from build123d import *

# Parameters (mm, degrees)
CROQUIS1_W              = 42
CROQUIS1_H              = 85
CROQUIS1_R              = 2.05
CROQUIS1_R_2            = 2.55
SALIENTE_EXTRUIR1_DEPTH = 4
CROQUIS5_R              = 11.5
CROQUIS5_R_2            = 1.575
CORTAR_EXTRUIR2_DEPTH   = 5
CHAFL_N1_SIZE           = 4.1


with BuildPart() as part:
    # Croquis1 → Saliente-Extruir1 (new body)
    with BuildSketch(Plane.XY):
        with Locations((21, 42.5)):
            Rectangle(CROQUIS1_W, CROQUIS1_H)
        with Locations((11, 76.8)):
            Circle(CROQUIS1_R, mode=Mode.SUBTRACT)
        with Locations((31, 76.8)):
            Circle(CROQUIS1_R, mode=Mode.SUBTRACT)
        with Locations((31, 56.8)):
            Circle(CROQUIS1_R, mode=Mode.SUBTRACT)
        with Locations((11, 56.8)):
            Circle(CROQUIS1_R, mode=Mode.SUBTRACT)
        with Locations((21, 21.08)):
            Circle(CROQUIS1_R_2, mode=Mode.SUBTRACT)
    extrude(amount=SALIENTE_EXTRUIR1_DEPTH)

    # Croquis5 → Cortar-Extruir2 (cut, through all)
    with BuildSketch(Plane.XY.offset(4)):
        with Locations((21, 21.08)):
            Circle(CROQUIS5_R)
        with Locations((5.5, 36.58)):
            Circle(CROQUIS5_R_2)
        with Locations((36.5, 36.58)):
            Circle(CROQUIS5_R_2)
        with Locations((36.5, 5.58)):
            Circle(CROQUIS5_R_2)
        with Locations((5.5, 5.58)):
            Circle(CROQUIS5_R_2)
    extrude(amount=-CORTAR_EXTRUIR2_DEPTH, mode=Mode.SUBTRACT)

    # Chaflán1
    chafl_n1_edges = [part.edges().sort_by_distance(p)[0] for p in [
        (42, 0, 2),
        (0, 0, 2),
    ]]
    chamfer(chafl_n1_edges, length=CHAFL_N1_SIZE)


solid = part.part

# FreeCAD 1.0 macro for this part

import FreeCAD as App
import Part
import Sketcher


def edges_at(feature, points):
    """Names of the edges that pass closest to the given points."""
    edges = feature.Shape.Edges
    near = lambda p: min(range(len(edges)), key=lambda i: edges[i].distToShape(Part.Vertex(*p))[0])
    return sorted({f"Edge{near(p) + 1}" for p in points})


def add_polygon(sketch, points):
    """Adds a closed chain of lines whose ends are joined by coincident constraints."""
    first, n = sketch.GeometryCount, len(points)
    for a, b in zip(points, points[1:] + points[:1]):
        sketch.addGeometry(Part.LineSegment(App.Vector(*a, 0), App.Vector(*b, 0)), False)
    for i in range(n):
        sketch.addConstraint(Sketcher.Constraint("Coincident", first + i, 2, first + (i + 1) % n, 1))

doc = App.newDocument("Part")
body = doc.addObject("PartDesign::Body", "Body")

sketch1 = body.newObject("Sketcher::SketchObject", "Sketch")
sketch1.AttachmentSupport = (doc.getObject("XY_Plane"), [""])
sketch1.MapMode = "FlatFace"
add_polygon(sketch1, [(0, 85), (0, 0), (42, 0), (42, 85)])
sketch1.addGeometry(Part.Circle(App.Vector(21, 21.08, 0), App.Vector(0, 0, 1), 2.55), False)
sketch1.addGeometry(Part.Circle(App.Vector(11, 56.8, 0), App.Vector(0, 0, 1), 2.05), False)
sketch1.addGeometry(Part.Circle(App.Vector(11, 76.8, 0), App.Vector(0, 0, 1), 2.05), False)
sketch1.addGeometry(Part.Circle(App.Vector(31, 56.8, 0), App.Vector(0, 0, 1), 2.05), False)
sketch1.addGeometry(Part.Circle(App.Vector(31, 76.8, 0), App.Vector(0, 0, 1), 2.05), False)
sketch1.addConstraint([
    Sketcher.Constraint("Vertical", 0),
    Sketcher.Constraint("Horizontal", 1),
    Sketcher.Constraint("Vertical", 2),
    Sketcher.Constraint("Horizontal", 3),
    Sketcher.Constraint("Coincident", 0, 2, -1, 1),
    Sketcher.Constraint("Equal", 5, 6),
    Sketcher.Constraint("Equal", 6, 7),
    Sketcher.Constraint("Equal", 7, 8),
    Sketcher.Constraint("Horizontal", 5, 3, 7, 3),
    Sketcher.Constraint("Horizontal", 6, 3, 8, 3),
    Sketcher.Constraint("Vertical", 5, 3, 6, 3),
    Sketcher.Constraint("Vertical", 7, 3, 8, 3),
    Sketcher.Constraint("Diameter", 4, 5.1),
    Sketcher.Constraint("Diameter", 5, 4.1),
    Sketcher.Constraint("DistanceX", 1, 1, 1, 2, 42.0),
    Sketcher.Constraint("DistanceY", 0, 2, 0, 1, 85.0),
    Sketcher.Constraint("DistanceX", -1, 1, 4, 3, 21.0),
    Sketcher.Constraint("DistanceX", -1, 1, 5, 3, 11.0),
    Sketcher.Constraint("DistanceX", -1, 1, 7, 3, 31.0),
    Sketcher.Constraint("DistanceY", 5, 3, 6, 3, 20.0),
    Sketcher.Constraint("DistanceY", -1, 1, 5, 3, 56.8),
    Sketcher.Constraint("DistanceY", -1, 1, 4, 3, 21.08),
])
pad1 = body.newObject("PartDesign::Pad", "Pad")
pad1.Profile = sketch1
pad1.Length = 4

sketch2 = body.newObject("Sketcher::SketchObject", "Sketch001")
sketch2.AttachmentSupport = (doc.getObject("XY_Plane"), [""])
sketch2.MapMode = "FlatFace"
sketch2.AttachmentOffset = App.Placement(App.Vector(0, 0, 4), App.Rotation())
sketch2.addGeometry([
    Part.Circle(App.Vector(21, 21.08, 0), App.Vector(0, 0, 1), 11.5),
    Part.Circle(App.Vector(5.5, 36.58, 0), App.Vector(0, 0, 1), 1.575),
    Part.Circle(App.Vector(36.5, 36.58, 0), App.Vector(0, 0, 1), 1.575),
    Part.Circle(App.Vector(36.5, 5.58, 0), App.Vector(0, 0, 1), 1.575),
    Part.Circle(App.Vector(5.5, 5.58, 0), App.Vector(0, 0, 1), 1.575),
], False)
sketch2.addConstraint([
    Sketcher.Constraint("Equal", 1, 2),
    Sketcher.Constraint("Equal", 2, 3),
    Sketcher.Constraint("Equal", 3, 4),
    Sketcher.Constraint("Horizontal", 1, 3, 2, 3),
    Sketcher.Constraint("Horizontal", 3, 3, 4, 3),
    Sketcher.Constraint("Vertical", 2, 3, 3, 3),
    Sketcher.Constraint("Vertical", 1, 3, 4, 3),
    Sketcher.Constraint("Diameter", 0, 23.0),
    Sketcher.Constraint("Diameter", 1, 3.15),
    Sketcher.Constraint("DistanceX", -1, 1, 0, 3, 21.0),
    Sketcher.Constraint("DistanceX", 1, 3, 2, 3, 31.0),
    Sketcher.Constraint("DistanceY", 3, 3, 2, 3, 31.0),
    Sketcher.Constraint("DistanceX", -1, 1, 1, 3, 5.5),
    Sketcher.Constraint("DistanceY", 0, 3, 1, 3, 15.5),
    Sketcher.Constraint("DistanceY", -1, 1, 0, 3, 21.08),
])
pocket1 = body.newObject("PartDesign::Pocket", "Pocket")
pocket1.Profile = sketch2
pocket1.Type = "ThroughAll"
doc.recompute()

chamfer = body.newObject("PartDesign::Chamfer", "Chamfer")
chamfer.Base = (pocket1, edges_at(pocket1, [(42, 0, 2), (0, 0, 2)]))
chamfer.Size = 4.1

doc.recompute()
